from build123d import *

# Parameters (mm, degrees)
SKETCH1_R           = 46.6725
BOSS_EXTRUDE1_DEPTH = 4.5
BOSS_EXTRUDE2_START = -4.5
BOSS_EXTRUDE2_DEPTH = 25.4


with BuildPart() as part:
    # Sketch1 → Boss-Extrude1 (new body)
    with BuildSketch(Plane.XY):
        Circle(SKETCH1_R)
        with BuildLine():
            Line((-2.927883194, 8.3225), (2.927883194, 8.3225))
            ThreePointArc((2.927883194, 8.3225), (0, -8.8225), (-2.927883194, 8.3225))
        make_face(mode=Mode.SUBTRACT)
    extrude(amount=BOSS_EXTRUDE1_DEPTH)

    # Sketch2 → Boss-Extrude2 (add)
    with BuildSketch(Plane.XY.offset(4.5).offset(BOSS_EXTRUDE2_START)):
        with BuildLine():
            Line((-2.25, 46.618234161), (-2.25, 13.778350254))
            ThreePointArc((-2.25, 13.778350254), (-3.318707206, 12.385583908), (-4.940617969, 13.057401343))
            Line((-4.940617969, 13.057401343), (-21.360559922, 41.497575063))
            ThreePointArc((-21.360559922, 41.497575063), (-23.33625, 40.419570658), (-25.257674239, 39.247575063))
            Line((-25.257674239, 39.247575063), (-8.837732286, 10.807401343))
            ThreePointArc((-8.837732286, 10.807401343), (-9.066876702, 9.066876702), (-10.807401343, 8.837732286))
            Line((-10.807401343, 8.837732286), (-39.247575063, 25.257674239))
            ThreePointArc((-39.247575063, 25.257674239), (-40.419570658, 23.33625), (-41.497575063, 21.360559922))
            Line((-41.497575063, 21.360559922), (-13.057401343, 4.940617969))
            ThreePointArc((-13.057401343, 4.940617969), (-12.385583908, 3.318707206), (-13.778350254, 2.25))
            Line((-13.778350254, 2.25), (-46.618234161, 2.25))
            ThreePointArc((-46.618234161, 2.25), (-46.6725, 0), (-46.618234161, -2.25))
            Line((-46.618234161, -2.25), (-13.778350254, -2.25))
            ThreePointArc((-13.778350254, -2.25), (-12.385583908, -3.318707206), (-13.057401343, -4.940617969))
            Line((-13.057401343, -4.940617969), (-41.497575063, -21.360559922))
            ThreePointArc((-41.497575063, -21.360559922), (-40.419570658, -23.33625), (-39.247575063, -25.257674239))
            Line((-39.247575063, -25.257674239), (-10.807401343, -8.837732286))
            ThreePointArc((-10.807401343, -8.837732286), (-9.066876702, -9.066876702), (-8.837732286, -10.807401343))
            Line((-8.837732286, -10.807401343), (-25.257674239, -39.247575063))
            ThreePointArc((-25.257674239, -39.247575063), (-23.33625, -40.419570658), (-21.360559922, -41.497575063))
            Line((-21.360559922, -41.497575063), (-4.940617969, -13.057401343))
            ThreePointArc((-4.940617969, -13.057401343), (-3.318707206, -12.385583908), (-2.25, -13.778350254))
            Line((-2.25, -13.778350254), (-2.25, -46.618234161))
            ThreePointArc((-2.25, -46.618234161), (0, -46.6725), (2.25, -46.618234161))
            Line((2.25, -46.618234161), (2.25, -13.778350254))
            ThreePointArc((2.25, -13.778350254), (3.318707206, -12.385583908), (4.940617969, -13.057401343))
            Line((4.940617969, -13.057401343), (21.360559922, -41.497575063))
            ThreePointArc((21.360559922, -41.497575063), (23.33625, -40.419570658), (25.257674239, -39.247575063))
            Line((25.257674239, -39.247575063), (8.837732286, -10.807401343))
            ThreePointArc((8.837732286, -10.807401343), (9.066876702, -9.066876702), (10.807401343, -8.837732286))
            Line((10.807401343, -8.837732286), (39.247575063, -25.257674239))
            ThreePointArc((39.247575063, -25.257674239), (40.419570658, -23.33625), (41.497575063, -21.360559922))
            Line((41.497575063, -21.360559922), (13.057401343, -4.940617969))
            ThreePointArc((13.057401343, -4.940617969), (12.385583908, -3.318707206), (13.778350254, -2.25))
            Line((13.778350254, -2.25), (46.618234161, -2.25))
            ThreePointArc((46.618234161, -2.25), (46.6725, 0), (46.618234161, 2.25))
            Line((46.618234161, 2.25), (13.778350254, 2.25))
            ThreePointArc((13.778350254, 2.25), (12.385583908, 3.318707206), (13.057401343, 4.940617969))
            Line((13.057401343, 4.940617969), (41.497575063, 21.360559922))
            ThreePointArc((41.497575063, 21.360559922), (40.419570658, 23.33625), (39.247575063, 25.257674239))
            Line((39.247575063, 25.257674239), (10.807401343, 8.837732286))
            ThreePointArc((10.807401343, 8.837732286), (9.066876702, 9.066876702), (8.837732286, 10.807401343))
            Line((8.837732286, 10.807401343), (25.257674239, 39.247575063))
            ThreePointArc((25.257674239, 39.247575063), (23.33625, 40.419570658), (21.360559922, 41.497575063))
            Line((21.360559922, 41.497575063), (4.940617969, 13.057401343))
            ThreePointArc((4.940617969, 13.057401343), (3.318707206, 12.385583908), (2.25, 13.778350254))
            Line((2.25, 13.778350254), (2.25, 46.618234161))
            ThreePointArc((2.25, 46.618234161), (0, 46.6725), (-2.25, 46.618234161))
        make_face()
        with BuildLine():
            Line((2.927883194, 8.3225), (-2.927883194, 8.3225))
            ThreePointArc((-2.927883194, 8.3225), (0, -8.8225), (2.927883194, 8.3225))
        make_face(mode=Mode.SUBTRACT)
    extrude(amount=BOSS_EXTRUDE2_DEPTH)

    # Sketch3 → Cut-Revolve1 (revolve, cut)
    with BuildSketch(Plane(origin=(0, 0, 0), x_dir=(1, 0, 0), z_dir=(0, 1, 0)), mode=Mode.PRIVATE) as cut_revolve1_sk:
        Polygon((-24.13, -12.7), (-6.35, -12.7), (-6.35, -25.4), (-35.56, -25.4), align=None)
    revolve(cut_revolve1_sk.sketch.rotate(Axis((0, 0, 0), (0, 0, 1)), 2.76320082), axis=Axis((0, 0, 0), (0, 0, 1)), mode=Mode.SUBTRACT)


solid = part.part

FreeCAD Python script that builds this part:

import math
import FreeCAD as App
import Part
import Sketcher
Q = App.Units.Quantity

doc = App.newDocument("Part")
body = doc.addObject("PartDesign::Body", "Body")

# Sketch on XY plane
sketch1 = doc.addObject("Sketcher::SketchObject", "Sketch")
body.addObject(sketch1)
sketch1.AttachmentSupport = (doc.XY_Plane, [""])
sketch1.MapMode = "FlatFace"
sketch1.addGeometry([
    Part.Circle(App.Vector(0, 0, 0), App.Vector(0, 0, 1), 46.6725),
    Part.ArcOfCircle(Part.Circle(App.Vector(0, 0, 0), App.Vector(0, 0, 1), 8.8225), math.radians(109.382042), math.radians(430.617958)),
    Part.LineSegment(App.Vector(-2.927883, 8.3225, 0), App.Vector(2.927883, 8.3225, 0)),
], False)
sketch1.addConstraint([
    Sketcher.Constraint("Coincident", 1, 1, 2, 1),
    Sketcher.Constraint("Coincident", 2, 2, 1, 2),
    Sketcher.Constraint("Horizontal", 2),
    Sketcher.Constraint("Coincident", 0, 3, -1, 1),
    Sketcher.Constraint("Coincident", 1, 3, -1, 1),
    Sketcher.Constraint("Diameter", 0, Q("3.675 in")),
    Sketcher.Constraint("Radius", 1, 8.8225),
    Sketcher.Constraint("DistanceY", -1, 1, 1, 1, 8.3225),
])
pad1 = doc.addObject("PartDesign::Pad", "Pad")
body.addObject(pad1)
pad1.Profile = sketch1
pad1.Length = 4.5

# Sketch on XY plane
sketch2 = doc.addObject("Sketcher::SketchObject", "Sketch001")
body.addObject(sketch2)
sketch2.AttachmentSupport = (doc.XY_Plane, [""])
sketch2.MapMode = "FlatFace"
sketch2.addGeometry([
    Part.LineSegment(App.Vector(-2.25, 46.618234, 0), App.Vector(-2.25, 13.77835, 0)),  # 0
    Part.ArcOfCircle(Part.Circle(App.Vector(-3.691898, 13.77835, 0), App.Vector(0, 0, 1), 1.441898), math.radians(-150), math.radians(0)),  # 1
    Part.LineSegment(App.Vector(-4.940618, 13.057401, 0), App.Vector(-21.36056, 41.497575, 0)),  # 2
    Part.ArcOfCircle(Part.Circle(App.Vector(0, 0, 0), App.Vector(0, 0, 1), 46.6725), math.radians(117.236799), math.radians(122.763201)),  # 3
    Part.LineSegment(App.Vector(-25.257674, 39.247575, 0), App.Vector(-8.837732, 10.807401, 0)),  # 4
    Part.ArcOfCircle(Part.Circle(App.Vector(-10.086452, 10.086452, 0), App.Vector(0, 0, 1), 1.441898), math.radians(-120), math.radians(30)),  # 5
    Part.LineSegment(App.Vector(-10.807401, 8.837732, 0), App.Vector(-39.247575, 25.257674, 0)),  # 6
    Part.ArcOfCircle(Part.Circle(App.Vector(0, 0, 0), App.Vector(0, 0, 1), 46.6725), math.radians(147.236799), math.radians(152.763201)),  # 7
    Part.LineSegment(App.Vector(-41.497575, 21.36056, 0), App.Vector(-13.057401, 4.940618, 0)),  # 8
    Part.ArcOfCircle(Part.Circle(App.Vector(-13.77835, 3.691898, 0), App.Vector(0, 0, 1), 1.441898), math.radians(-90), math.radians(60)),  # 9
    Part.LineSegment(App.Vector(-13.77835, 2.25, 0), App.Vector(-46.618234, 2.25, 0)),  # 10
    Part.ArcOfCircle(Part.Circle(App.Vector(0, 0, 0), App.Vector(0, 0, 1), 46.6725), math.radians(177.236799), math.radians(182.763201)),  # 11
    Part.LineSegment(App.Vector(-46.618234, -2.25, 0), App.Vector(-13.77835, -2.25, 0)),  # 12
    Part.ArcOfCircle(Part.Circle(App.Vector(-13.77835, -3.691898, 0), App.Vector(0, 0, 1), 1.441898), math.radians(-60), math.radians(90)),  # 13
    Part.LineSegment(App.Vector(-13.057401, -4.940618, 0), App.Vector(-41.497575, -21.36056, 0)),  # 14
    Part.ArcOfCircle(Part.Circle(App.Vector(0, 0, 0), App.Vector(0, 0, 1), 46.6725), math.radians(-152.763201), math.radians(-147.236799)),  # 15
    Part.LineSegment(App.Vector(-39.247575, -25.257674, 0), App.Vector(-10.807401, -8.837732, 0)),  # 16
    Part.ArcOfCircle(Part.Circle(App.Vector(-10.086452, -10.086452, 0), App.Vector(0, 0, 1), 1.441898), math.radians(-30), math.radians(120)),  # 17
    Part.LineSegment(App.Vector(-8.837732, -10.807401, 0), App.Vector(-25.257674, -39.247575, 0)),  # 18
    Part.ArcOfCircle(Part.Circle(App.Vector(0, 0, 0), App.Vector(0, 0, 1), 46.6725), math.radians(-122.763201), math.radians(-117.236799)),  # 19
    Part.LineSegment(App.Vector(-21.36056, -41.497575, 0), App.Vector(-4.940618, -13.057401, 0)),  # 20
    Part.ArcOfCircle(Part.Circle(App.Vector(-3.691898, -13.77835, 0), App.Vector(0, 0, 1), 1.441898), math.radians(0), math.radians(150)),  # 21
    Part.LineSegment(App.Vector(-2.25, -13.77835, 0), App.Vector(-2.25, -46.618234, 0)),  # 22
    Part.ArcOfCircle(Part.Circle(App.Vector(0, 0, 0), App.Vector(0, 0, 1), 46.6725), math.radians(-92.763201), math.radians(-87.236799)),  # 23
    Part.LineSegment(App.Vector(2.25, -46.618234, 0), App.Vector(2.25, -13.77835, 0)),  # 24
    Part.ArcOfCircle(Part.Circle(App.Vector(3.691898, -13.77835, 0), App.Vector(0, 0, 1), 1.441898), math.radians(30), math.radians(180)),  # 25
    Part.LineSegment(App.Vector(4.940618, -13.057401, 0), App.Vector(21.36056, -41.497575, 0)),  # 26
    Part.ArcOfCircle(Part.Circle(App.Vector(0, 0, 0), App.Vector(0, 0, 1), 46.6725), math.radians(-62.763201), math.radians(-57.236799)),  # 27
    Part.LineSegment(App.Vector(25.257674, -39.247575, 0), App.Vector(8.837732, -10.807401, 0)),  # 28
    Part.ArcOfCircle(Part.Circle(App.Vector(10.086452, -10.086452, 0), App.Vector(0, 0, 1), 1.441898), math.radians(60), math.radians(210)),  # 29
    Part.LineSegment(App.Vector(10.807401, -8.837732, 0), App.Vector(39.247575, -25.257674, 0)),  # 30
    Part.ArcOfCircle(Part.Circle(App.Vector(0, 0, 0), App.Vector(0, 0, 1), 46.6725), math.radians(-32.763201), math.radians(-27.236799)),  # 31
    Part.LineSegment(App.Vector(41.497575, -21.36056, 0), App.Vector(13.057401, -4.940618, 0)),  # 32
    Part.ArcOfCircle(Part.Circle(App.Vector(13.77835, -3.691898, 0), App.Vector(0, 0, 1), 1.441898), math.radians(90), math.radians(240)),  # 33
    Part.LineSegment(App.Vector(13.77835, -2.25, 0), App.Vector(46.618234, -2.25, 0)),  # 34
    Part.ArcOfCircle(Part.Circle(App.Vector(0, 0, 0), App.Vector(0, 0, 1), 46.6725), math.radians(-2.763201), math.radians(2.763201)),  # 35
    Part.LineSegment(App.Vector(46.618234, 2.25, 0), App.Vector(13.77835, 2.25, 0)),  # 36
    Part.ArcOfCircle(Part.Circle(App.Vector(13.77835, 3.691898, 0), App.Vector(0, 0, 1), 1.441898), math.radians(120), math.radians(270)),  # 37
    Part.LineSegment(App.Vector(13.057401, 4.940618, 0), App.Vector(41.497575, 21.36056, 0)),  # 38
    Part.ArcOfCircle(Part.Circle(App.Vector(0, 0, 0), App.Vector(0, 0, 1), 46.6725), math.radians(27.236799), math.radians(32.763201)),  # 39
    Part.LineSegment(App.Vector(39.247575, 25.257674, 0), App.Vector(10.807401, 8.837732, 0)),  # 40
    Part.ArcOfCircle(Part.Circle(App.Vector(10.086452, 10.086452, 0), App.Vector(0, 0, 1), 1.441898), math.radians(150), math.radians(300)),  # 41
    Part.LineSegment(App.Vector(8.837732, 10.807401, 0), App.Vector(25.257674, 39.247575, 0)),  # 42
    Part.ArcOfCircle(Part.Circle(App.Vector(0, 0, 0), App.Vector(0, 0, 1), 46.6725), math.radians(57.236799), math.radians(62.763201)),  # 43
    Part.LineSegment(App.Vector(21.36056, 41.497575, 0), App.Vector(4.940618, 13.057401, 0)),  # 44
    Part.ArcOfCircle(Part.Circle(App.Vector(3.691898, 13.77835, 0), App.Vector(0, 0, 1), 1.441898), math.radians(-180), math.radians(-30)),  # 45
    Part.LineSegment(App.Vector(2.25, 13.77835, 0), App.Vector(2.25, 46.618234, 0)),  # 46
    Part.ArcOfCircle(Part.Circle(App.Vector(0, 0, 0), App.Vector(0, 0, 1), 46.6725), math.radians(87.236799), math.radians(92.763201)),  # 47
    Part.LineSegment(App.Vector(-2.927883, 8.3225, 0), App.Vector(2.927883, 8.3225, 0)),  # 48
    Part.ArcOfCircle(Part.Circle(App.Vector(0, 0, 0), App.Vector(0, 0, 1), 8.8225), math.radians(109.382042), math.radians(430.617958)),  # 49
], False)
sketch2.addConstraint([
    Sketcher.Constraint("Tangent", 0, 2, 1, 2),
    Sketcher.Constraint("Tangent", 1, 1, 2, 1),
    Sketcher.Constraint("Coincident", 2, 2, 3, 1),
    Sketcher.Constraint("Coincident", 3, 2, 4, 1),
    Sketcher.Constraint("Tangent", 4, 2, 5, 2),
    Sketcher.Constraint("Tangent", 5, 1, 6, 1),
    Sketcher.Constraint("Coincident", 6, 2, 7, 1),
    Sketcher.Constraint("Coincident", 7, 2, 8, 1),
    Sketcher.Constraint("Tangent", 8, 2, 9, 2),
    Sketcher.Constraint("Tangent", 9, 1, 10, 1),
    Sketcher.Constraint("Coincident", 10, 2, 11, 1),
    Sketcher.Constraint("Coincident", 11, 2, 12, 1),
    Sketcher.Constraint("Tangent", 12, 2, 13, 2),
    Sketcher.Constraint("Tangent", 13, 1, 14, 1),
    Sketcher.Constraint("Coincident", 14, 2, 15, 1),
    Sketcher.Constraint("Coincident", 15, 2, 16, 1),
    Sketcher.Constraint("Tangent", 16, 2, 17, 2),
    Sketcher.Constraint("Tangent", 17, 1, 18, 1),
    Sketcher.Constraint("Coincident", 18, 2, 19, 1),
    Sketcher.Constraint("Coincident", 19, 2, 20, 1),
    Sketcher.Constraint("Tangent", 20, 2, 21, 2),
    Sketcher.Constraint("Tangent", 21, 1, 22, 1),
    Sketcher.Constraint("Coincident", 22, 2, 23, 1),
    Sketcher.Constraint("Coincident", 23, 2, 24, 1),
    Sketcher.Constraint("Tangent", 24, 2, 25, 2),
    Sketcher.Constraint("Tangent", 25, 1, 26, 1),
    Sketcher.Constraint("Coincident", 26, 2, 27, 1),
    Sketcher.Constraint("Coincident", 27, 2, 28, 1),
    Sketcher.Constraint("Tangent", 28, 2, 29, 2),
    Sketcher.Constraint("Tangent", 29, 1, 30, 1),
    Sketcher.Constraint("Coincident", 30, 2, 31, 1),
    Sketcher.Constraint("Coincident", 31, 2, 32, 1),
    Sketcher.Constraint("Tangent", 32, 2, 33, 2),
    Sketcher.Constraint("Tangent", 33, 1, 34, 1),
    Sketcher.Constraint("Coincident", 34, 2, 35, 1),
    Sketcher.Constraint("Coincident", 35, 2, 36, 1),
    Sketcher.Constraint("Tangent", 36, 2, 37, 2),
    Sketcher.Constraint("Tangent", 37, 1, 38, 1),
    Sketcher.Constraint("Coincident", 38, 2, 39, 1),
    Sketcher.Constraint("Coincident", 39, 2, 40, 1),
    Sketcher.Constraint("Tangent", 40, 2, 41, 2),
    Sketcher.Constraint("Tangent", 41, 1, 42, 1),
    Sketcher.Constraint("Coincident", 42, 2, 43, 1),
    Sketcher.Constraint("Coincident", 43, 2, 44, 1),
    Sketcher.Constraint("Tangent", 44, 2, 45, 2),
    Sketcher.Constraint("Tangent", 45, 1, 46, 1),
    Sketcher.Constraint("Coincident", 46, 2, 47, 1),
    Sketcher.Constraint("Coincident", 47, 2, 0, 1),
    Sketcher.Constraint("Coincident", 48, 1, 49, 1),
    Sketcher.Constraint("Coincident", 49, 2, 48, 2),
    Sketcher.Constraint("Vertical", 0),
    Sketcher.Constraint("Horizontal", 10),
    Sketcher.Constraint("Horizontal", 12),
    Sketcher.Constraint("Vertical", 22),
    Sketcher.Constraint("Vertical", 24),
    Sketcher.Constraint("Horizontal", 34),
    Sketcher.Constraint("Horizontal", 36),
    Sketcher.Constraint("Vertical", 46),
    Sketcher.Constraint("Horizontal", 48),
    Sketcher.Constraint("Coincident", 3, 3, -1, 1),
    Sketcher.Constraint("Coincident", 7, 3, -1, 1),
    Sketcher.Constraint("Coincident", 11, 3, -1, 1),
    Sketcher.Constraint("Coincident", 15, 3, -1, 1),
    Sketcher.Constraint("Coincident", 19, 3, -1, 1),
    Sketcher.Constraint("Coincident", 23, 3, -1, 1),
    Sketcher.Constraint("Coincident", 27, 3, -1, 1),
    Sketcher.Constraint("Coincident", 31, 3, -1, 1),
    Sketcher.Constraint("Coincident", 35, 3, -1, 1),
    Sketcher.Constraint("Coincident", 39, 3, -1, 1),
    Sketcher.Constraint("Coincident", 43, 3, -1, 1),
    Sketcher.Constraint("Coincident", 47, 3, -1, 1),
    Sketcher.Constraint("Coincident", 49, 3, -1, 1),
    Sketcher.Constraint("Equal", 1, 5),
    Sketcher.Constraint("Equal", 3, 7),
    Sketcher.Constraint("Equal", 5, 9),
    Sketcher.Constraint("Equal", 7, 11),
    Sketcher.Constraint("Equal", 9, 13),
    Sketcher.Constraint("Equal", 11, 15),
    Sketcher.Constraint("Equal", 13, 17),
    Sketcher.Constraint("Equal", 15, 19),
    Sketcher.Constraint("Equal", 17, 21),
    Sketcher.Constraint("Equal", 19, 23),
    Sketcher.Constraint("Equal", 21, 25),
    Sketcher.Constraint("Equal", 23, 27),
    Sketcher.Constraint("Equal", 25, 29),
    Sketcher.Constraint("Equal", 27, 31),
    Sketcher.Constraint("Equal", 29, 33),
    Sketcher.Constraint("Equal", 31, 35),
    Sketcher.Constraint("Equal", 33, 37),
    Sketcher.Constraint("Equal", 35, 39),
    Sketcher.Constraint("Equal", 37, 41),
    Sketcher.Constraint("Equal", 39, 43),
    Sketcher.Constraint("Equal", 41, 45),
    Sketcher.Constraint("Equal", 43, 47),
    Sketcher.Constraint("Symmetric", 1, 3, 25, 3, -1, 1),
    Sketcher.Constraint("Symmetric", 5, 3, 29, 3, -1, 1),
    Sketcher.Constraint("Symmetric", 9, 3, 33, 3, -1, 1),
    Sketcher.Constraint("Symmetric", 13, 3, 37, 3, -1, 1),
    Sketcher.Constraint("Symmetric", 17, 3, 41, 3, -1, 1),
    Sketcher.Constraint("Symmetric", 21, 3, 45, 3, -1, 1),
    Sketcher.Constraint("Symmetric", 21, 3, 25, 3, -2),
    Sketcher.Constraint("Symmetric", 17, 3, 29, 3, -2),
    Sketcher.Constraint("Symmetric", 13, 3, 33, 3, -2),
    Sketcher.Constraint("Parallel", 2, 4),
    Sketcher.Constraint("Parallel", 6, 8),
    Sketcher.Constraint("Perpendicular", 4, 14),
    Sketcher.Constraint("Parallel", 14, 16),
    Sketcher.Constraint("Perpendicular", 8, 18),
    Sketcher.Constraint("Parallel", 18, 20),
    Sketcher.Constraint("Perpendicular", 16, 26),
    Sketcher.Constraint("Parallel", 26, 28),
    Sketcher.Constraint("Perpendicular", 20, 30),
    Sketcher.Constraint("Parallel", 30, 32),
    Sketcher.Constraint("Perpendicular", 28, 38),
    Sketcher.Constraint("Parallel", 38, 40),
    Sketcher.Constraint("Perpendicular", 32, 42),
    Sketcher.Constraint("Parallel", 42, 44),
    Sketcher.Constraint("Horizontal", 20, 2, 25, 1),
    Sketcher.Constraint("Equal", 36, 0),
    Sketcher.Constraint("Equal", 2, 4),
    Sketcher.Constraint("Equal", 4, 6),
    Sketcher.Constraint("Equal", 6, 8),
    Sketcher.Constraint("Angle", 2, Q("120 deg")),
    Sketcher.Constraint("Radius", 3, Q("1.8375 in")),
    Sketcher.Constraint("Radius", 49, 8.8225),
    Sketcher.Constraint("Radius", 1, 1.441898),
    Sketcher.Constraint("DistanceX", 0, 2, -1, 1, 2.25),
    Sketcher.Constraint("DistanceY", -1, 1, 1, 1, 13.057401),
    Sketcher.Constraint("DistanceY", -1, 1, 48, 1, 8.3225),
])
pad2 = doc.addObject("PartDesign::Pad", "Pad001")
body.addObject(pad2)
pad2.Profile = sketch2
pad2.Length = Q("1 in")

# Sketch on XZ plane
sketch3 = doc.addObject("Sketcher::SketchObject", "Sketch002")
body.addObject(sketch3)
sketch3.AttachmentSupport = (doc.XZ_Plane, [""])
sketch3.MapMode = "FlatFace"
sketch3.addGeometry([
    Part.LineSegment(App.Vector(-6.35, 12.7, 0), App.Vector(-24.13, 12.7, 0)),
    Part.LineSegment(App.Vector(-24.13, 12.7, 0), App.Vector(-35.56, 25.4, 0)),
    Part.LineSegment(App.Vector(-35.56, 25.4, 0), App.Vector(-6.35, 25.4, 0)),
    Part.LineSegment(App.Vector(-6.35, 25.4, 0), App.Vector(-6.35, 12.7, 0)),
], False)
sketch3.addConstraint([
    Sketcher.Constraint("Coincident", 0, 2, 1, 1),
    Sketcher.Constraint("Coincident", 1, 2, 2, 1),
    Sketcher.Constraint("Coincident", 2, 2, 3, 1),
    Sketcher.Constraint("Coincident", 3, 2, 0, 1),
    Sketcher.Constraint("Horizontal", 0),
    Sketcher.Constraint("Horizontal", 2),
    Sketcher.Constraint("Vertical", 3),
    Sketcher.Constraint("DistanceX", 0, 2, 0, 1, Q("0.7 in")),
    Sketcher.Constraint("DistanceY", 3, 2, 3, 1, Q("0.5 in")),
    Sketcher.Constraint("DistanceY", -1, 1, 1, 2, Q("1 in")),
    Sketcher.Constraint("DistanceX", 2, 1, 2, 2, Q("1.15 in")),
    Sketcher.Constraint("DistanceX", 1, 2, -1, 1, Q("1.4 in")),
])
groove = doc.addObject("PartDesign::Groove", "Groove")
body.addObject(groove)
groove.Profile = sketch3
groove.ReferenceAxis = (sketch3, ["V_Axis"])
groove.Angle = 360

doc.recompute()
